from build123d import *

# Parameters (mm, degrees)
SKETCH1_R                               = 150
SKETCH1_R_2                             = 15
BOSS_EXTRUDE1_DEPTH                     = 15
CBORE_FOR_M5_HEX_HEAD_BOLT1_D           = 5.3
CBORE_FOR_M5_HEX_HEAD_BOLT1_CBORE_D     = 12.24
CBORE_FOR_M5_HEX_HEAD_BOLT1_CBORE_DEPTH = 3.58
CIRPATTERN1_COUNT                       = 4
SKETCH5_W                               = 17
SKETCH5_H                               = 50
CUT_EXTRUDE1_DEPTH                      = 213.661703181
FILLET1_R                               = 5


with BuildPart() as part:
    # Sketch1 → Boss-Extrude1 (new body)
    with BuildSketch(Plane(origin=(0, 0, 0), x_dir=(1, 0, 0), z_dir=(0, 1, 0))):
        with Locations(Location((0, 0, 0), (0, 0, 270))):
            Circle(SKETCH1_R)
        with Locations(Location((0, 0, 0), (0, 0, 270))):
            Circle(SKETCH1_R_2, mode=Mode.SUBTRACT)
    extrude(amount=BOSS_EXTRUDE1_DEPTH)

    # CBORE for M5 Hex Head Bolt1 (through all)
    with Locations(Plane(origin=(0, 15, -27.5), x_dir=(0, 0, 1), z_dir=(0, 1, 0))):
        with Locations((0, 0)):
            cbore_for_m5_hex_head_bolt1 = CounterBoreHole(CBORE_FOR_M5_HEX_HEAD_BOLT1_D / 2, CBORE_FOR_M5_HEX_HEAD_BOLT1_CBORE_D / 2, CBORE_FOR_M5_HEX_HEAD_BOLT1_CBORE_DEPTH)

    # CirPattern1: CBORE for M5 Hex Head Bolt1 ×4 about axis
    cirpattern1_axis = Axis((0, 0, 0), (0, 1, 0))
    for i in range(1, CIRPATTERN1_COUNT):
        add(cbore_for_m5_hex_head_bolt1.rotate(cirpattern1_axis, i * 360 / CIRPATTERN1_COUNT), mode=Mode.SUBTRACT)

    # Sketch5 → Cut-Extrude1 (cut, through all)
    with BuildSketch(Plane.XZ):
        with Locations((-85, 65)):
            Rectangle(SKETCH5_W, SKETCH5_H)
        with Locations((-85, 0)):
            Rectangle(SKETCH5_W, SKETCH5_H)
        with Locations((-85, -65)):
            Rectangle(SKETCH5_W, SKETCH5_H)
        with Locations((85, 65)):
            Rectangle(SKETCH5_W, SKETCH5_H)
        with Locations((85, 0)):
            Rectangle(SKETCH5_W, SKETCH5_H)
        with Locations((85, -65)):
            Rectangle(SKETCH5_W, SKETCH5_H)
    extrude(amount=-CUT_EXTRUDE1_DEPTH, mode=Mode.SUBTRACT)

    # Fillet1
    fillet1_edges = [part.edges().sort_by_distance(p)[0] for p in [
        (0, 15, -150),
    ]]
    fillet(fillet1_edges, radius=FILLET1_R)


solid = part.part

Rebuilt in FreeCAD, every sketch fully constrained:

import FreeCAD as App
import Part
import Sketcher
from FreeCAD import Vector


def edges_at(feature, points):
    """Names of the edges that pass closest to the given points."""
    edges = feature.Shape.Edges
    near = lambda p: min(range(len(edges)), key=lambda i: edges[i].distToShape(Part.Vertex(*p))[0])
    return sorted({f"Edge{near(p) + 1}" for p in points})

doc = App.newDocument("Part")
body = doc.addObject("PartDesign::Body", "Body")

# Sketch on XZ plane
sketch1 = body.newObject("Sketcher::SketchObject", "Sketch")
sketch1.AttachmentSupport = (doc.getObject("XZ_Plane"), [""])
sketch1.MapMode = "FlatFace"
sketch1.addGeometry(Part.Circle(Vector(0, 0, 0), Vector(0, 0, 1), 150), False)
sketch1.addGeometry(Part.Circle(Vector(0, 0, 0), Vector(0, 0, 1), 15), False)
sketch1.addConstraint(Sketcher.Constraint("Coincident", 0, 3, -1, 1))
sketch1.addConstraint(Sketcher.Constraint("Coincident", 1, 3, -1, 1))
sketch1.addConstraint(Sketcher.Constraint("Diameter", 0, 300.0))
sketch1.addConstraint(Sketcher.Constraint("Diameter", 1, 30.0))
pad1 = body.newObject("PartDesign::Pad", "Pad")
pad1.Profile = sketch1
pad1.Length = 15
pad1.Reversed = True

# Sketch on XZ plane
sketch2 = body.newObject("Sketcher::SketchObject", "Sketch001")
sketch2.AttachmentSupport = (doc.getObject("XZ_Plane"), [""])
sketch2.MapMode = "FlatFace"
sketch2.AttachmentOffset = App.Placement(Vector(0, 0, -15), App.Rotation())
sketch2.addGeometry(Part.Circle(Vector(0, -27.5, 0), Vector(0, 0, 1), 2.65), False)
sketch2.addConstraint(Sketcher.Constraint("PointOnObject", 0, 3, -2))
sketch2.addConstraint(Sketcher.Constraint("Diameter", 0, 5.3))
sketch2.addConstraint(Sketcher.Constraint("DistanceY", 0, 3, -1, 1, 27.5))
doc.recompute()
hole = body.newObject("PartDesign::Hole", "Hole")
hole.Profile = sketch2
hole.ThreadType = "None"
hole.Diameter = 5.3
hole.DepthType = "ThroughAll"
hole.HoleCutType = "Counterbore"
hole.HoleCutDiameter = 12.24
hole.HoleCutDepth = 3.58
hole.Reversed = True
doc.recompute()

polarpattern = body.newObject("PartDesign::PolarPattern", "PolarPattern")
polarpattern.Originals = [hole]
polarpattern.Axis = (doc.getObject("Y_Axis"), [""])
polarpattern.Angle = 360
polarpattern.Occurrences = 4
body.Tip = polarpattern

# Sketch on XZ plane
sketch3 = body.newObject("Sketcher::SketchObject", "Sketch002")
sketch3.AttachmentSupport = (doc.getObject("XZ_Plane"), [""])
sketch3.MapMode = "FlatFace"
sketch3.addGeometry(Part.LineSegment(Vector(-93.5, 90, 0), Vector(-93.5, 40, 0)), False)
sketch3.addGeometry(Part.LineSegment(Vector(-93.5, 40, 0), Vector(-76.5, 40, 0)), False)
sketch3.addGeometry(Part.LineSegment(Vector(-76.5, 40, 0), Vector(-76.5, 90, 0)), False)
sketch3.addGeometry(Part.LineSegment(Vector(-76.5, 90, 0), Vector(-93.5, 90, 0)), False)
sketch3.addGeometry(Part.LineSegment(Vector(-93.5, 25, 0), Vector(-93.5, -25, 0)), False)
sketch3.addGeometry(Part.LineSegment(Vector(-93.5, -25, 0), Vector(-76.5, -25, 0)), False)
sketch3.addGeometry(Part.LineSegment(Vector(-76.5, -25, 0), Vector(-76.5, 25, 0)), False)
sketch3.addGeometry(Part.LineSegment(Vector(-76.5, 25, 0), Vector(-93.5, 25, 0)), False)
sketch3.addGeometry(Part.LineSegment(Vector(-93.5, -40, 0), Vector(-93.5, -90, 0)), False)
sketch3.addGeometry(Part.LineSegment(Vector(-93.5, -90, 0), Vector(-76.5, -90, 0)), False)
sketch3.addGeometry(Part.LineSegment(Vector(-76.5, -90, 0), Vector(-76.5, -40, 0)), False)
sketch3.addGeometry(Part.LineSegment(Vector(-76.5, -40, 0), Vector(-93.5, -40, 0)), False)
sketch3.addGeometry(Part.LineSegment(Vector(76.5, 90, 0), Vector(76.5, 40, 0)), False)
sketch3.addGeometry(Part.LineSegment(Vector(76.5, 40, 0), Vector(93.5, 40, 0)), False)
sketch3.addGeometry(Part.LineSegment(Vector(93.5, 40, 0), Vector(93.5, 90, 0)), False)
sketch3.addGeometry(Part.LineSegment(Vector(93.5, 90, 0), Vector(76.5, 90, 0)), False)
sketch3.addGeometry(Part.LineSegment(Vector(76.5, 25, 0), Vector(76.5, -25, 0)), False)
sketch3.addGeometry(Part.LineSegment(Vector(76.5, -25, 0), Vector(93.5, -25, 0)), False)
sketch3.addGeometry(Part.LineSegment(Vector(93.5, -25, 0), Vector(93.5, 25, 0)), False)
sketch3.addGeometry(Part.LineSegment(Vector(93.5, 25, 0), Vector(76.5, 25, 0)), False)
sketch3.addGeometry(Part.LineSegment(Vector(76.5, -40, 0), Vector(76.5, -90, 0)), False)
sketch3.addGeometry(Part.LineSegment(Vector(76.5, -90, 0), Vector(93.5, -90, 0)), False)
sketch3.addGeometry(Part.LineSegment(Vector(93.5, -90, 0), Vector(93.5, -40, 0)), False)
sketch3.addGeometry(Part.LineSegment(Vector(93.5, -40, 0), Vector(76.5, -40, 0)), False)
sketch3.addConstraint(Sketcher.Constraint("Coincident", 0, 2, 1, 1))
sketch3.addConstraint(Sketcher.Constraint("Coincident", 1, 2, 2, 1))
sketch3.addConstraint(Sketcher.Constraint("Coincident", 2, 2, 3, 1))
sketch3.addConstraint(Sketcher.Constraint("Coincident", 3, 2, 0, 1))
sketch3.addConstraint(Sketcher.Constraint("Coincident", 4, 2, 5, 1))
sketch3.addConstraint(Sketcher.Constraint("Coincident", 5, 2, 6, 1))
sketch3.addConstraint(Sketcher.Constraint("Coincident", 6, 2, 7, 1))
sketch3.addConstraint(Sketcher.Constraint("Coincident", 7, 2, 4, 1))
sketch3.addConstraint(Sketcher.Constraint("Coincident", 8, 2, 9, 1))
sketch3.addConstraint(Sketcher.Constraint("Coincident", 9, 2, 10, 1))
sketch3.addConstraint(Sketcher.Constraint("Coincident", 10, 2, 11, 1))
sketch3.addConstraint(Sketcher.Constraint("Coincident", 11, 2, 8, 1))
sketch3.addConstraint(Sketcher.Constraint("Coincident", 12, 2, 13, 1))
sketch3.addConstraint(Sketcher.Constraint("Coincident", 13, 2, 14, 1))
sketch3.addConstraint(Sketcher.Constraint("Coincident", 14, 2, 15, 1))
sketch3.addConstraint(Sketcher.Constraint("Coincident", 15, 2, 12, 1))
sketch3.addConstraint(Sketcher.Constraint("Coincident", 16, 2, 17, 1))
sketch3.addConstraint(Sketcher.Constraint("Coincident", 17, 2, 18, 1))
sketch3.addConstraint(Sketcher.Constraint("Coincident", 18, 2, 19, 1))
sketch3.addConstraint(Sketcher.Constraint("Coincident", 19, 2, 16, 1))
sketch3.addConstraint(Sketcher.Constraint("Coincident", 20, 2, 21, 1))
sketch3.addConstraint(Sketcher.Constraint("Coincident", 21, 2, 22, 1))
sketch3.addConstraint(Sketcher.Constraint("Coincident", 22, 2, 23, 1))
sketch3.addConstraint(Sketcher.Constraint("Coincident", 23, 2, 20, 1))
sketch3.addConstraint(Sketcher.Constraint("Vertical", 0))
sketch3.addConstraint(Sketcher.Constraint("Horizontal", 1))
sketch3.addConstraint(Sketcher.Constraint("Vertical", 2))
sketch3.addConstraint(Sketcher.Constraint("Horizontal", 3))
sketch3.addConstraint(Sketcher.Constraint("Vertical", 4))
sketch3.addConstraint(Sketcher.Constraint("Horizontal", 5))
sketch3.addConstraint(Sketcher.Constraint("Vertical", 6))
sketch3.addConstraint(Sketcher.Constraint("Horizontal", 7))
sketch3.addConstraint(Sketcher.Constraint("Vertical", 8))
sketch3.addConstraint(Sketcher.Constraint("Horizontal", 9))
sketch3.addConstraint(Sketcher.Constraint("Vertical", 10))
sketch3.addConstraint(Sketcher.Constraint("Horizontal", 11))
sketch3.addConstraint(Sketcher.Constraint("Vertical", 12))
sketch3.addConstraint(Sketcher.Constraint("Horizontal", 13))
sketch3.addConstraint(Sketcher.Constraint("Vertical", 14))
sketch3.addConstraint(Sketcher.Constraint("Horizontal", 15))
sketch3.addConstraint(Sketcher.Constraint("Vertical", 16))
sketch3.addConstraint(Sketcher.Constraint("Horizontal", 17))
sketch3.addConstraint(Sketcher.Constraint("Vertical", 18))
sketch3.addConstraint(Sketcher.Constraint("Horizontal", 19))
sketch3.addConstraint(Sketcher.Constraint("Vertical", 20))
sketch3.addConstraint(Sketcher.Constraint("Horizontal", 21))
sketch3.addConstraint(Sketcher.Constraint("Vertical", 22))
sketch3.addConstraint(Sketcher.Constraint("Horizontal", 23))
sketch3.addConstraint(Sketcher.Constraint("Symmetric", 10, 2, 12, 2, -1, 1))
sketch3.addConstraint(Sketcher.Constraint("Symmetric", 8, 2, 14, 2, -1, 1))
sketch3.addConstraint(Sketcher.Constraint("Symmetric", 6, 2, 16, 2, -1, 1))
sketch3.addConstraint(Sketcher.Constraint("Symmetric", 4, 2, 18, 2, -1, 1))
sketch3.addConstraint(Sketcher.Constraint("Symmetric", 2, 2, 20, 2, -1, 1))
sketch3.addConstraint(Sketcher.Constraint("Symmetric", 0, 2, 22, 2, -1, 1))
sketch3.addConstraint(Sketcher.Constraint("Symmetric", 1, 2, 12, 2, -2))
sketch3.addConstraint(Sketcher.Constraint("Symmetric", 3, 2, 14, 2, -2))
sketch3.addConstraint(Sketcher.Constraint("Horizontal", 5, 2, 16, 2))
sketch3.addConstraint(Sketcher.Constraint("Vertical", 3, 2, 4, 2))
sketch3.addConstraint(Sketcher.Constraint("Vertical", 2, 2, 5, 2))
sketch3.addConstraint(Sketcher.Constraint("Equal", 2, 4))
sketch3.addConstraint(Sketcher.Constraint("DistanceX", 1, 1, 1, 2, 17.0))
sketch3.addConstraint(Sketcher.Constraint("DistanceY", 0, 2, 0, 1, 50.0))
sketch3.addConstraint(Sketcher.Constraint("DistanceY", -1, 1, 0, 2, 40.0))
sketch3.addConstraint(Sketcher.Constraint("DistanceX", 1, 2, 12, 2, 153.0))
pocket1 = body.newObject("PartDesign::Pocket", "Pocket")
pocket1.Profile = sketch3
pocket1.Type = "ThroughAll"
doc.recompute()

fillet = body.newObject("PartDesign::Fillet", "Fillet")
fillet.Base = (pocket1, edges_at(pocket1, [(0, 15, -150)]))
fillet.Radius = 5

doc.recompute()
